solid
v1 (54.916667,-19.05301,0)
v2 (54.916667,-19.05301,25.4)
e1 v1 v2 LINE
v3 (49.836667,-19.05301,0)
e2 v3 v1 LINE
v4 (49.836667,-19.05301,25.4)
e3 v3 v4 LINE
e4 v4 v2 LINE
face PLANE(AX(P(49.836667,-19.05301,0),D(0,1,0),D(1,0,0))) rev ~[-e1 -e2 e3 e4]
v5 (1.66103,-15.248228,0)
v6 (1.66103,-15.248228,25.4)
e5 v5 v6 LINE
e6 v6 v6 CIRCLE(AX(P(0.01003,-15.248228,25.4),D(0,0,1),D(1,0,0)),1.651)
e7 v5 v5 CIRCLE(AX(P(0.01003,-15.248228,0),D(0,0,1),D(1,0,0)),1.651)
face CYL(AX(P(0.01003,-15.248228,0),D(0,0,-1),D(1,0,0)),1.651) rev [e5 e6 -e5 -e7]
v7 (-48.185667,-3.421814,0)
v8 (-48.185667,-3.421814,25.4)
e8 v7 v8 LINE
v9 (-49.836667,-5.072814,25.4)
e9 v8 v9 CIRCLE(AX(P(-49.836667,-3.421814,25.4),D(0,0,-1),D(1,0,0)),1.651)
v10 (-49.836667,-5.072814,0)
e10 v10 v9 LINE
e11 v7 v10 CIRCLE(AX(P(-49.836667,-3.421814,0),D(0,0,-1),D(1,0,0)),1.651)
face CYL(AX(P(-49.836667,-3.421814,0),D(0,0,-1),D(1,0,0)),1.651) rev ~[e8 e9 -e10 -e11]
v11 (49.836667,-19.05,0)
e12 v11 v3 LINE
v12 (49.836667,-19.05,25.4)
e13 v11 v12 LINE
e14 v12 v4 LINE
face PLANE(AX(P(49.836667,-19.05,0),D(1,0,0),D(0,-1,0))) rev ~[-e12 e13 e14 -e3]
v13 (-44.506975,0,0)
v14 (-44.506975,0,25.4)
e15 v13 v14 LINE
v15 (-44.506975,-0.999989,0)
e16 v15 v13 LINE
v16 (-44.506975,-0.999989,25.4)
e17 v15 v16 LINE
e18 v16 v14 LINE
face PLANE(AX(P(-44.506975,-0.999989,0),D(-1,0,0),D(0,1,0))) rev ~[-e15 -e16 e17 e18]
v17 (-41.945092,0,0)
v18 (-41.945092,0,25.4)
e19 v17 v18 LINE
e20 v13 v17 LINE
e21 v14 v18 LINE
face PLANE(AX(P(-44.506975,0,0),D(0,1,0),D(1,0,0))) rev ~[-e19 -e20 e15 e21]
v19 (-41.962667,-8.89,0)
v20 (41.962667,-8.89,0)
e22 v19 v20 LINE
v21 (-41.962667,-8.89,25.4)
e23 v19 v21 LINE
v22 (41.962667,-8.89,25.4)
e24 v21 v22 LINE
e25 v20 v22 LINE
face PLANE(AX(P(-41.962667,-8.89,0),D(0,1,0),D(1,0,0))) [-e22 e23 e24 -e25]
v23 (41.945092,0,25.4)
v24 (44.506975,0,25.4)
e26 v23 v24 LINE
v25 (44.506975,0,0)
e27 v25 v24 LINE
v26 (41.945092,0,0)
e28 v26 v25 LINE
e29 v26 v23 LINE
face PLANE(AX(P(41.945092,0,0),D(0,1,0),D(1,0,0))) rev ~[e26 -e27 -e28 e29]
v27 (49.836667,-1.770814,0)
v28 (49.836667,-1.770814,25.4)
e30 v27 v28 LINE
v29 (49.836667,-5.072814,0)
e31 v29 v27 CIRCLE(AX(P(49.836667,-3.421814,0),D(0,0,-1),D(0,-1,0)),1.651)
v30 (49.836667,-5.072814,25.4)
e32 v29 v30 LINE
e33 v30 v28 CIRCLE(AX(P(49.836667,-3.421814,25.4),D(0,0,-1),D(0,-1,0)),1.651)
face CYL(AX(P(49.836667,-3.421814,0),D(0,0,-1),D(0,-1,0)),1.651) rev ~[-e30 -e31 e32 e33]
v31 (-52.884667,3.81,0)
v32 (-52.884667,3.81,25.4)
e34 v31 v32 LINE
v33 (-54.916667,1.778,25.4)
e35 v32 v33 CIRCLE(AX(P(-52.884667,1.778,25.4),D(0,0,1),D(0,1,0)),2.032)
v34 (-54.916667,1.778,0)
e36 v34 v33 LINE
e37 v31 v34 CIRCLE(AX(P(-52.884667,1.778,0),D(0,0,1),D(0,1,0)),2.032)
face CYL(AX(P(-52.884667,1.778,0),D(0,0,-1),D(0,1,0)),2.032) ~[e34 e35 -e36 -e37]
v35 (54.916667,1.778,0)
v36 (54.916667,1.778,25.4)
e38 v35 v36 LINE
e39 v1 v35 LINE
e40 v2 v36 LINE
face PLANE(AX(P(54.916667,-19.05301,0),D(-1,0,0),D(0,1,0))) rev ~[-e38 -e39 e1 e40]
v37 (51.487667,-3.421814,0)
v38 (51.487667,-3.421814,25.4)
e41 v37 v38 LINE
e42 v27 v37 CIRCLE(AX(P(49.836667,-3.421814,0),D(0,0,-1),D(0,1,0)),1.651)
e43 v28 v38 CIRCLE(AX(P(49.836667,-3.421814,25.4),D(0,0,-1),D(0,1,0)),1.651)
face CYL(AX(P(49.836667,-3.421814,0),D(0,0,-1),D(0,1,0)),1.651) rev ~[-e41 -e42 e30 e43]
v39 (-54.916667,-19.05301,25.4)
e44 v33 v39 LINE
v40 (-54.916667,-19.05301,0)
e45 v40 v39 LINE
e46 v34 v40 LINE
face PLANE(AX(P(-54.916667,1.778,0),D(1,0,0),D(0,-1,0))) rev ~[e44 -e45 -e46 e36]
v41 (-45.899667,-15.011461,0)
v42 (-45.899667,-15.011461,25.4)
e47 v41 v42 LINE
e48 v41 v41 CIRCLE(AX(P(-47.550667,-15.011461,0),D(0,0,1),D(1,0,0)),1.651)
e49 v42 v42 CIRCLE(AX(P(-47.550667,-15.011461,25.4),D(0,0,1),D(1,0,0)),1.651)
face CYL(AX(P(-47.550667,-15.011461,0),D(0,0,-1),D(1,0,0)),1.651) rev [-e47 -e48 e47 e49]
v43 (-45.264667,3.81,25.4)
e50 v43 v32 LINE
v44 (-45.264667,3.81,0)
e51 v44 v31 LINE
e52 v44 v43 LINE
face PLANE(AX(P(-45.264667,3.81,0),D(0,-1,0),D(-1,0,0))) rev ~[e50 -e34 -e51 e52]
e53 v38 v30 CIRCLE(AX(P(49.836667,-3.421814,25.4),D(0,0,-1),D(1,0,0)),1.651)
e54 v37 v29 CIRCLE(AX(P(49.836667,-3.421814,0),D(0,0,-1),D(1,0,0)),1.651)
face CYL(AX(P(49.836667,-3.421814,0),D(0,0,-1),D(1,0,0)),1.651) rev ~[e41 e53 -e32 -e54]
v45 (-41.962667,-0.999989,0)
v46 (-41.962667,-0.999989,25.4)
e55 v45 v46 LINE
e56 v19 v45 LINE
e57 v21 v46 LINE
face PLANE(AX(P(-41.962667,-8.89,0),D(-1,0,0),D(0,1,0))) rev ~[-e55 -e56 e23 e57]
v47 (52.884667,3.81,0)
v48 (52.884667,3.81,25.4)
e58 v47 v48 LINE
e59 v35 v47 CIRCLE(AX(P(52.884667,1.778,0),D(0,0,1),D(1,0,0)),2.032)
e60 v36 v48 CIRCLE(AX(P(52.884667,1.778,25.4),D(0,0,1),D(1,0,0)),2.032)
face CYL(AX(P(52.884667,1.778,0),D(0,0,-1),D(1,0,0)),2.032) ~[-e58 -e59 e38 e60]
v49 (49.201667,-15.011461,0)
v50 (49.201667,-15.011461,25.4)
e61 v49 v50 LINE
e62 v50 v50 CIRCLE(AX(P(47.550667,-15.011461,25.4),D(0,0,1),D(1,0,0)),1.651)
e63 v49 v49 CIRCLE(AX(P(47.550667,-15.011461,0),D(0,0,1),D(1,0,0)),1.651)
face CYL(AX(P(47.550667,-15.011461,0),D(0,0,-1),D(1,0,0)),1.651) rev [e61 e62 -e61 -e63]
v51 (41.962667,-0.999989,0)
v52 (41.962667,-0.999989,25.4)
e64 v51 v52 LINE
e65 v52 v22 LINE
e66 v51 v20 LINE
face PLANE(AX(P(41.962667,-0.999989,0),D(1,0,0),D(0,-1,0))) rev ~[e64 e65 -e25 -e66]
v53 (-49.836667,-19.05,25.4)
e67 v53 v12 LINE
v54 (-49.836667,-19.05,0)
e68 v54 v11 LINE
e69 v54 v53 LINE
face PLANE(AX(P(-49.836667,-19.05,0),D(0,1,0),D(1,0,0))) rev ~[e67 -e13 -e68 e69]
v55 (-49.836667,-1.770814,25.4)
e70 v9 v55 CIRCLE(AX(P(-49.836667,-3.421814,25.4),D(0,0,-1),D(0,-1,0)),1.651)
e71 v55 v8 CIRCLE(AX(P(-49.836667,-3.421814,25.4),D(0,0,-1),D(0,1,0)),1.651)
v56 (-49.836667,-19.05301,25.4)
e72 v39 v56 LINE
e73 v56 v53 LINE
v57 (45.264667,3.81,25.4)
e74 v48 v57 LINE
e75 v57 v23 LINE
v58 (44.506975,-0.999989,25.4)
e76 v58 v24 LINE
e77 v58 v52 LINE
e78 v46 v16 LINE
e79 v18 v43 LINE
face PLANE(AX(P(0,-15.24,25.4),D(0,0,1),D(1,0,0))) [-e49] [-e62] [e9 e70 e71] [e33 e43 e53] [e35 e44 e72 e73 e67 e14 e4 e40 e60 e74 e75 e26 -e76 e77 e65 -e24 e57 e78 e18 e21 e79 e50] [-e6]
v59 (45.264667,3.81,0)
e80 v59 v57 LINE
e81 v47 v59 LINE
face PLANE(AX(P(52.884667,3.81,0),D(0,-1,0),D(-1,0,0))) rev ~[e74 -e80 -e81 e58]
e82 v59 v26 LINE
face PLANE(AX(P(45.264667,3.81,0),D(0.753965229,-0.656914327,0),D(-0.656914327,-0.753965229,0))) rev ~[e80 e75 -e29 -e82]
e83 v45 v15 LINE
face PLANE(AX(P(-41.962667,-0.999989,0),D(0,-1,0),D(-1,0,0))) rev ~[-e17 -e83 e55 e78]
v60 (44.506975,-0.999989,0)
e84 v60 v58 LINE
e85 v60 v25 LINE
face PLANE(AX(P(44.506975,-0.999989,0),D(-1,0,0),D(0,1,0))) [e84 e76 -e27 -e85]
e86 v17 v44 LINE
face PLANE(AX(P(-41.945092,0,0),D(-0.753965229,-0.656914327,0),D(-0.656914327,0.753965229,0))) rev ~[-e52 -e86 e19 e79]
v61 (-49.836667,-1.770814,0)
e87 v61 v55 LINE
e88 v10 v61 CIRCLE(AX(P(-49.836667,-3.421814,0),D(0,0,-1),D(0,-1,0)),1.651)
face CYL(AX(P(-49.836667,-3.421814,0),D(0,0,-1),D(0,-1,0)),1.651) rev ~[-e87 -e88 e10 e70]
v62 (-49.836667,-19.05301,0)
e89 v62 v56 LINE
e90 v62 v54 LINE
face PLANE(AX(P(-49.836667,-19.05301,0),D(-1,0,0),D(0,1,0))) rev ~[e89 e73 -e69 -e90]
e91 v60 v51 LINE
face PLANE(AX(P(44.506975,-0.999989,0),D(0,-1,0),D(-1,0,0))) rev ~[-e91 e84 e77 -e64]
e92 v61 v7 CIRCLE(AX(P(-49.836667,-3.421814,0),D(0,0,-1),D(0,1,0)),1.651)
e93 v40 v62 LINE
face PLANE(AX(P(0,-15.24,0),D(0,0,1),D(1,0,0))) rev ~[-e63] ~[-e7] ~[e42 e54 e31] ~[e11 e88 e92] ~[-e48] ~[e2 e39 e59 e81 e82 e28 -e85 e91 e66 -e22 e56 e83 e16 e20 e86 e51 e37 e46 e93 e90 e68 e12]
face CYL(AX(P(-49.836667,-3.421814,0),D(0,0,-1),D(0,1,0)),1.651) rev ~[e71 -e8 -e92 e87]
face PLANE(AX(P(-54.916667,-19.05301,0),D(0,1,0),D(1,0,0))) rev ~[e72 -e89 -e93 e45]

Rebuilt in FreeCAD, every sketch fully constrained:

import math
import FreeCAD as App
import Part
import Sketcher

V = App.Vector
Q = App.Units.Quantity

doc = App.newDocument("Part")
body = doc.addObject("PartDesign::Body", "Body")

# Sketch on XY plane
sketch1 = body.newObject("Sketcher::SketchObject", "Sketch")
sketch1.AttachmentSupport = (doc.getObject("XY_Plane"), [""])
sketch1.MapMode = "FlatFace"
sketch1.addGeometry([
    Part.LineSegment(V(44.506975, 0, 0), V(44.506975, -0.999989, 0)),  # 0
    Part.LineSegment(V(44.506975, -0.999989, 0), V(41.962667, -0.999989, 0)),  # 1
    Part.LineSegment(V(41.962667, -0.999989, 0), V(41.962667, -8.89, 0)),  # 2
    Part.LineSegment(V(41.962667, -8.89, 0), V(-41.962667, -8.89, 0)),  # 3
    Part.LineSegment(V(-41.962667, -8.89, 0), V(-41.962667, -0.999989, 0)),  # 4
    Part.LineSegment(V(-41.962667, -0.999989, 0), V(-44.506975, -0.999989, 0)),  # 5
    Part.LineSegment(V(-44.506975, -0.999989, 0), V(-44.506975, 0, 0)),  # 6
    Part.LineSegment(V(-44.506975, 0, 0), V(-41.945092, 0, 0)),  # 7
    Part.LineSegment(V(-41.945092, 0, 0), V(-45.264667, 3.81, 0)),  # 8
    Part.LineSegment(V(-45.264667, 3.81, 0), V(-52.884667, 3.81, 0)),  # 9
    Part.ArcOfCircle(Part.Circle(V(-52.884667, 1.778, 0), V(0, 0, 1), 2.032), math.radians(90), math.radians(180)),  # 10
    Part.LineSegment(V(-54.916667, 1.778, 0), V(-54.916667, -19.05301, 0)),  # 11
    Part.LineSegment(V(-54.916667, -19.05301, 0), V(-49.836667, -19.05301, 0)),  # 12
    Part.LineSegment(V(-49.836667, -19.05301, 0), V(-49.836667, -19.05, 0)),  # 13
    Part.LineSegment(V(-49.836667, -19.05, 0), V(49.836667, -19.05, 0)),  # 14
    Part.LineSegment(V(49.836667, -19.05, 0), V(49.836667, -19.05301, 0)),  # 15
    Part.LineSegment(V(49.836667, -19.05301, 0), V(54.916667, -19.05301, 0)),  # 16
    Part.LineSegment(V(54.916667, -19.05301, 0), V(54.916667, 1.778, 0)),  # 17
    Part.ArcOfCircle(Part.Circle(V(52.884667, 1.778, 0), V(0, 0, 1), 2.032), math.radians(0), math.radians(90)),  # 18
    Part.LineSegment(V(52.884667, 3.81, 0), V(45.264667, 3.81, 0)),  # 19
    Part.LineSegment(V(45.264667, 3.81, 0), V(41.945092, 0, 0)),  # 20
    Part.LineSegment(V(41.945092, 0, 0), V(44.506975, 0, 0)),  # 21
    Part.ArcOfCircle(Part.Circle(V(49.836667, -3.421814, 0), V(0, 0, 1), 1.651), math.radians(0), math.radians(90)),  # 22
    Part.ArcOfCircle(Part.Circle(V(49.836667, -3.421814, 0), V(0, 0, 1), 1.651), math.radians(-90), math.radians(0)),  # 23
    Part.ArcOfCircle(Part.Circle(V(49.836667, -3.421814, 0), V(0, 0, 1), 1.651), math.radians(90), math.radians(270)),  # 24
    Part.ArcOfCircle(Part.Circle(V(-49.836667, -3.421814, 0), V(0, 0, 1), 1.651), math.radians(90), math.radians(270)),  # 25
    Part.ArcOfCircle(Part.Circle(V(-49.836667, -3.421814, 0), V(0, 0, 1), 1.651), math.radians(0), math.radians(90)),  # 26
    Part.ArcOfCircle(Part.Circle(V(-49.836667, -3.421814, 0), V(0, 0, 1), 1.651), math.radians(-90), math.radians(0)),  # 27
    Part.Circle(V(0.01003, -15.248228, 0), V(0, 0, 1), 1.651),  # 28
    Part.Circle(V(-47.550667, -15.011461, 0), V(0, 0, 1), 1.651),  # 29
    Part.Circle(V(47.550667, -15.011461, 0), V(0, 0, 1), 1.651),  # 30
], False)
sketch1.addConstraint([
    Sketcher.Constraint("Coincident", 0, 2, 1, 1),
    Sketcher.Constraint("Coincident", 1, 2, 2, 1),
    Sketcher.Constraint("Coincident", 2, 2, 3, 1),
    Sketcher.Constraint("Coincident", 3, 2, 4, 1),
    Sketcher.Constraint("Coincident", 4, 2, 5, 1),
    Sketcher.Constraint("Coincident", 5, 2, 6, 1),
    Sketcher.Constraint("Coincident", 6, 2, 7, 1),
    Sketcher.Constraint("Coincident", 7, 2, 8, 1),
    Sketcher.Constraint("Coincident", 8, 2, 9, 1),
    Sketcher.Constraint("Tangent", 9, 2, 10, 1),
    Sketcher.Constraint("Tangent", 10, 2, 11, 1),
    Sketcher.Constraint("Coincident", 11, 2, 12, 1),
    Sketcher.Constraint("Coincident", 12, 2, 13, 1),
    Sketcher.Constraint("Coincident", 13, 2, 14, 1),
    Sketcher.Constraint("Coincident", 14, 2, 15, 1),
    Sketcher.Constraint("Coincident", 15, 2, 16, 1),
    Sketcher.Constraint("Coincident", 16, 2, 17, 1),
    Sketcher.Constraint("Tangent", 17, 2, 18, 1),
    Sketcher.Constraint("Tangent", 18, 2, 19, 1),
    Sketcher.Constraint("Coincident", 19, 2, 20, 1),
    Sketcher.Constraint("Coincident", 20, 2, 21, 1),
    Sketcher.Constraint("Coincident", 21, 2, 0, 1),
    Sketcher.Constraint("Tangent", 22, 1, 23, 2),
    Sketcher.Constraint("Tangent", 23, 1, 24, 2),
    Sketcher.Constraint("Tangent", 24, 1, 22, 2),
    Sketcher.Constraint("Tangent", 25, 1, 26, 2),
    Sketcher.Constraint("Tangent", 26, 1, 27, 2),
    Sketcher.Constraint("Tangent", 27, 1, 25, 2),
    Sketcher.Constraint("Vertical", 0),
    Sketcher.Constraint("Horizontal", 1),
    Sketcher.Constraint("Vertical", 2),
    Sketcher.Constraint("Horizontal", 3),
    Sketcher.Constraint("Vertical", 4),
    Sketcher.Constraint("Horizontal", 5),
    Sketcher.Constraint("Vertical", 6),
    Sketcher.Constraint("Horizontal", 7),
    Sketcher.Constraint("Horizontal", 9),
    Sketcher.Constraint("Vertical", 11),
    Sketcher.Constraint("Horizontal", 12),
    Sketcher.Constraint("Vertical", 13),
    Sketcher.Constraint("Horizontal", 14),
    Sketcher.Constraint("Vertical", 15),
    Sketcher.Constraint("Horizontal", 16),
    Sketcher.Constraint("Vertical", 17),
    Sketcher.Constraint("Horizontal", 19),
    Sketcher.Constraint("Horizontal", 21),
    Sketcher.Constraint("Equal", 10, 18),
    Sketcher.Constraint("Equal", 24, 25),
    Sketcher.Constraint("Equal", 27, 28),
    Sketcher.Constraint("Equal", 28, 29),
    Sketcher.Constraint("Equal", 29, 30),
    Sketcher.Constraint("Symmetric", 7, 2, 20, 2, -1, 1),
    Sketcher.Constraint("Symmetric", 10, 3, 18, 3, -2),
    Sketcher.Constraint("Symmetric", 22, 3, 25, 3, -2),
    Sketcher.Constraint("Symmetric", 29, 3, 30, 3, -2),
    Sketcher.Constraint("Symmetric", 1, 2, 4, 2, -2),
    Sketcher.Constraint("Symmetric", 12, 2, 15, 2, -2),
    Sketcher.Constraint("Symmetric", 6, 2, 21, 2, -2),
    Sketcher.Constraint("Horizontal", 27, 3, 22, 1),
    Sketcher.Constraint("Horizontal", 22, 1, 26, 1),
    Sketcher.Constraint("Vertical", 27, 3, 12, 2),
    Sketcher.Constraint("Vertical", 15, 2, 23, 1),
    Sketcher.Constraint("Vertical", 23, 1, 24, 1),
    Sketcher.Constraint("Vertical", 13, 2, 25, 1),
    Sketcher.Constraint("Vertical", 25, 1, 27, 1),
    Sketcher.Constraint("Equal", 9, 19),
    Sketcher.Constraint("Diameter", 28, Q("0.13 in")),
    Sketcher.Constraint("Radius", 10, Q("0.08 in")),
    Sketcher.Constraint("DistanceX", 9, 2, 9, 1, Q("0.3 in")),
    Sketcher.Constraint("DistanceX", 12, 1, 12, 2, Q("0.2 in")),
    Sketcher.Constraint("DistanceY", 13, 2, 3, 2, Q("0.4 in")),
    Sketcher.Constraint("DistanceY", -1, 1, 10, 3, Q("0.07 in")),
    Sketcher.Constraint("DistanceY", 2, 2, -1, 1, Q("0.35 in")),
    Sketcher.Constraint("DistanceX", 27, 3, 29, 3, Q("0.09 in")),
    Sketcher.Constraint("DistanceX", 1, 2, 22, 3, Q("0.31 in")),
    Sketcher.Constraint("DistanceY", 0, 2, 0, 1, 0.999989),
    Sketcher.Constraint("DistanceY", 11, 2, 11, 1, 20.83101),
    Sketcher.Constraint("DistanceX", 1, 2, 1, 1, 2.544308),
    Sketcher.Constraint("DistanceX", 3, 2, 3, 1, 83.925333),
    Sketcher.Constraint("DistanceX", 7, 1, 7, 2, 2.561882),
    Sketcher.Constraint("DistanceX", -1, 1, 28, 3, 0.01003),
    Sketcher.Constraint("DistanceY", 29, 3, -1, 1, 15.011461),
    Sketcher.Constraint("DistanceY", 22, 3, -1, 1, 3.421814),
    Sketcher.Constraint("DistanceY", 28, 3, -1, 1, 15.248228),
])
pad1 = body.newObject("PartDesign::Pad", "Pad")
pad1.Profile = sketch1
pad1.Length = Q("1 in")

doc.recompute()
